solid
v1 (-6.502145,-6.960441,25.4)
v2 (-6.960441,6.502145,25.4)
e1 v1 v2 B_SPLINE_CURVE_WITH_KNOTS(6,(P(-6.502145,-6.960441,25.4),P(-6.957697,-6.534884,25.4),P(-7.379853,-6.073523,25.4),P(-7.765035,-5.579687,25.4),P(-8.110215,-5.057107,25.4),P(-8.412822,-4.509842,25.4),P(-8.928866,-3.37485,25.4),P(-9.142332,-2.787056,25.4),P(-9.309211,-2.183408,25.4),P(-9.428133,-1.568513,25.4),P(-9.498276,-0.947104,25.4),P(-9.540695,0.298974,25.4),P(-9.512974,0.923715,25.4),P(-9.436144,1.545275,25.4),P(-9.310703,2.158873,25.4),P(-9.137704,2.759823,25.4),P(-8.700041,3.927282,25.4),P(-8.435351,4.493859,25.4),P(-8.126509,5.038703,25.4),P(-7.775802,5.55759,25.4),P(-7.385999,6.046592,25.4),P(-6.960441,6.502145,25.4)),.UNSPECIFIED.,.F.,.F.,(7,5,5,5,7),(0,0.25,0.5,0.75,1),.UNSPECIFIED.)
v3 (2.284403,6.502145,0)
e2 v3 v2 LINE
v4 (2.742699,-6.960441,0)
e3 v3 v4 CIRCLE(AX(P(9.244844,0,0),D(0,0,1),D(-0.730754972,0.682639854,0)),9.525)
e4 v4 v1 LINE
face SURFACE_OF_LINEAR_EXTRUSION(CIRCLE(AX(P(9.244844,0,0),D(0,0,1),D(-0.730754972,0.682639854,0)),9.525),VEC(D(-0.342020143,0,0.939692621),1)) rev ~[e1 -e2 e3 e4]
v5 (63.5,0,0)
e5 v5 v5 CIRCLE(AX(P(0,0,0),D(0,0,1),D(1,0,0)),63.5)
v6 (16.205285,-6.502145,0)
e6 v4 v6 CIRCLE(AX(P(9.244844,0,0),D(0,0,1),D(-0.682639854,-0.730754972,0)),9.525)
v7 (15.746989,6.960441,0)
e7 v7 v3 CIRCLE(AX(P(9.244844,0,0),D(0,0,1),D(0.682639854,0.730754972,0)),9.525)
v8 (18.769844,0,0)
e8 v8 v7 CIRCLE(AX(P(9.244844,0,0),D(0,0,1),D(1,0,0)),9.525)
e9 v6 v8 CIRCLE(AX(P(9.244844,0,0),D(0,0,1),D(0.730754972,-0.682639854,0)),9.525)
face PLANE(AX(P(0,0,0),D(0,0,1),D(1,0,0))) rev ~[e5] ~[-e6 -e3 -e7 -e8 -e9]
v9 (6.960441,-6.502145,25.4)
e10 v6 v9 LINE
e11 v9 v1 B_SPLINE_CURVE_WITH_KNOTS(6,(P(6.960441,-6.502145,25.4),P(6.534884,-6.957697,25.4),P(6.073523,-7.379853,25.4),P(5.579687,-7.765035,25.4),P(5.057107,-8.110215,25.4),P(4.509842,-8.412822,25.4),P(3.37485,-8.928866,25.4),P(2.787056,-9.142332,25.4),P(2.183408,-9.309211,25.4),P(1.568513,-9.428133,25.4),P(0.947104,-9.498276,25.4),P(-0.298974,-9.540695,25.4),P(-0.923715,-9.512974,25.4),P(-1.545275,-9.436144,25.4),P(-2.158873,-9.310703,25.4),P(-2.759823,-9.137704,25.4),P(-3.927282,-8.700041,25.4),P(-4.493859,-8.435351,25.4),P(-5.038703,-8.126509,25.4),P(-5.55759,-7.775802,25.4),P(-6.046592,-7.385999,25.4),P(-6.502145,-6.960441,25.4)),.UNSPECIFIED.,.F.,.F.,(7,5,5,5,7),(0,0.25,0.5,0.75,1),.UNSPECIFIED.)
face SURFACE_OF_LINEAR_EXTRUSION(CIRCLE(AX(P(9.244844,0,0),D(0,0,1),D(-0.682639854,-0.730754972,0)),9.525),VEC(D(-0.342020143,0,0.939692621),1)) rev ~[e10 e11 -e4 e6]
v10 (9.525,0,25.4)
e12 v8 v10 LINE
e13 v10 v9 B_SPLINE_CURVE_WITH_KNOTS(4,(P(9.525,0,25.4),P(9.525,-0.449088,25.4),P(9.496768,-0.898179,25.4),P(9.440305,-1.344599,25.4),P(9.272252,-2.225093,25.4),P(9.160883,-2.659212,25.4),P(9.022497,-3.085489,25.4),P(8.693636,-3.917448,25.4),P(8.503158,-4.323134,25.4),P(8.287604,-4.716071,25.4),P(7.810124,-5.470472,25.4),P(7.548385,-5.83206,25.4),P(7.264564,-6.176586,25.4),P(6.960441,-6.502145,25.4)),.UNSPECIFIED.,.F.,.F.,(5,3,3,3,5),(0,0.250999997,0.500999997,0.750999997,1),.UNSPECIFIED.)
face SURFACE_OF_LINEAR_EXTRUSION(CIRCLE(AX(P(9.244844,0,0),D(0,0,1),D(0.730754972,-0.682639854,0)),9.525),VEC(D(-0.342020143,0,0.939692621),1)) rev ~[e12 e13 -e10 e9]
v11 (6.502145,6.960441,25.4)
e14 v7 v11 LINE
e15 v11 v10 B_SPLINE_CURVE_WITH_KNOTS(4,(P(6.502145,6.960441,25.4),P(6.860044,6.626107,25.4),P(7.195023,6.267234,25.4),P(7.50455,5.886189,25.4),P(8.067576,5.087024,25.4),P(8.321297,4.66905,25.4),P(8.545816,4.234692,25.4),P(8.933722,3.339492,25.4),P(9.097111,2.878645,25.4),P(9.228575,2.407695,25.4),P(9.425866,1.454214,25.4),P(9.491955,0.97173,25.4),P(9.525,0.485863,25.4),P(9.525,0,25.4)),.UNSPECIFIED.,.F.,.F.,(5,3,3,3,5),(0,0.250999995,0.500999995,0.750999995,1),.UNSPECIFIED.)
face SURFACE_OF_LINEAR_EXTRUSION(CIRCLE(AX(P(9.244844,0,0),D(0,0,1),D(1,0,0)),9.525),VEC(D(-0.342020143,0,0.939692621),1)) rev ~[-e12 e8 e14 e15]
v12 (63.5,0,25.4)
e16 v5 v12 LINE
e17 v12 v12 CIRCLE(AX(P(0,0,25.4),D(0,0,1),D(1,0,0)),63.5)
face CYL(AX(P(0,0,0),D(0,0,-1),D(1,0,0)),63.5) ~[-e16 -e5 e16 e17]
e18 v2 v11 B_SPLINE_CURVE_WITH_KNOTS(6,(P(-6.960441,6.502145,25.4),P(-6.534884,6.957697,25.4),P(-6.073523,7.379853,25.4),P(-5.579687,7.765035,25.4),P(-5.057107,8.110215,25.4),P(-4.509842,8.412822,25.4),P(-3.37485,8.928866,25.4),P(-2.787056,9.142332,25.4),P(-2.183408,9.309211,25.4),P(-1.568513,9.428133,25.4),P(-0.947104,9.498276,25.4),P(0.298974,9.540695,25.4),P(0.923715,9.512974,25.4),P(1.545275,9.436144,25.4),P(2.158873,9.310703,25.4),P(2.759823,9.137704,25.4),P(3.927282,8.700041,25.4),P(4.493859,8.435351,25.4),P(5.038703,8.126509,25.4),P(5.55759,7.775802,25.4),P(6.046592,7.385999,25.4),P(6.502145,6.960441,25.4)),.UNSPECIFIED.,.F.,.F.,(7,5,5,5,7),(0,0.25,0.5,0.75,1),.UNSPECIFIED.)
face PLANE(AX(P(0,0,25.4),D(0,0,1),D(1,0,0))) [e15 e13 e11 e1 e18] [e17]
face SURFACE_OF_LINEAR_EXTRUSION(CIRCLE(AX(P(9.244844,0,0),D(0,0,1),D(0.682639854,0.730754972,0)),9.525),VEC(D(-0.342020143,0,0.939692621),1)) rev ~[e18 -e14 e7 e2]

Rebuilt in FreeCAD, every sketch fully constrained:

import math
import FreeCAD as App
import Part
import Sketcher
from FreeCAD import Vector
Q = App.Units.Quantity

doc = App.newDocument("Part")
body = doc.addObject("PartDesign::Body", "Body")

# Sketch on XY plane
sketch1 = body.newObject("Sketcher::SketchObject", "Sketch")
sketch1.AttachmentSupport = (doc.getObject("XY_Plane"), [""])
sketch1.MapMode = "FlatFace"
sketch1.addGeometry(Part.Circle(Vector(0, 0, 0), Vector(0, 0, 1), 63.5), False)
sketch1.addConstraint(Sketcher.Constraint("Coincident", 0, 3, -1, 1))
sketch1.addConstraint(Sketcher.Constraint("Diameter", 0, Q("5 in")))
pad1 = body.newObject("PartDesign::Pad", "Pad")
pad1.Profile = sketch1
pad1.Length = Q("1 in")

# Sketch on XY plane
sketch2 = body.newObject("Sketcher::SketchObject", "Sketch001")
sketch2.AttachmentSupport = (doc.getObject("XY_Plane"), [""])
sketch2.MapMode = "FlatFace"
sketch2.AttachmentOffset = App.Placement(Vector(0, 0, 1 * 25.4), App.Rotation())
sketch2.addGeometry(Part.ArcOfCircle(Part.Circle(Vector(0, 0, 0), Vector(0, 0, 1), 9.525), math.radians(-43.050277), math.radians(0)), False)
sketch2.addGeometry(Part.ArcOfCircle(Part.Circle(Vector(0, 0, 0), Vector(0, 0, 1), 9.525), math.radians(0), math.radians(46.949723)), False)
sketch2.addGeometry(Part.ArcOfCircle(Part.Circle(Vector(0, 0, 0), Vector(0, 0, 1), 9.525), math.radians(46.949723), math.radians(136.949723)), False)
sketch2.addGeometry(Part.ArcOfCircle(Part.Circle(Vector(0, 0, 0), Vector(0, 0, 1), 9.525), math.radians(136.949723), math.radians(226.949723)), False)
sketch2.addGeometry(Part.ArcOfCircle(Part.Circle(Vector(0, 0, 0), Vector(0, 0, 1), 9.525), math.radians(-133.050277), math.radians(-43.050277)), False)
sketch2.addConstraint(Sketcher.Constraint("Tangent", 0, 2, 1, 1))
sketch2.addConstraint(Sketcher.Constraint("Tangent", 1, 2, 2, 1))
sketch2.addConstraint(Sketcher.Constraint("Tangent", 2, 2, 3, 1))
sketch2.addConstraint(Sketcher.Constraint("Tangent", 3, 2, 4, 1))
sketch2.addConstraint(Sketcher.Constraint("Tangent", 4, 2, 0, 1))
sketch2.addConstraint(Sketcher.Constraint("Coincident", 0, 3, -1, 1))
sketch2.addConstraint(Sketcher.Constraint("Coincident", 2, 3, -1, 1))
sketch2.addConstraint(Sketcher.Constraint("PointOnObject", 0, 2, -1))
sketch2.addConstraint(Sketcher.Constraint("Radius", 0, Q("0.375 in")))
sketch2.addConstraint(Sketcher.Constraint("DistanceY", -1, 1, 1, 2, 6.960441))
sketch2.addConstraint(Sketcher.Constraint("DistanceX", 2, 2, -1, 1, 6.960441))
sketch2.addConstraint(Sketcher.Constraint("DistanceY", 3, 2, -1, 1, 6.960441))
sketch2.addConstraint(Sketcher.Constraint("DistanceX", -1, 1, 4, 2, 6.960441))

# Sketch on an angled plane
sketch3 = body.newObject("Sketcher::SketchObject", "Sketch002")
sketch3.Placement = App.Placement(Vector(8.308451, 0, 3.024029), App.Rotation(Vector(-0.342020143, 0, 0.939692621), Vector(0, 1, 0), Vector(-0.939692621, 0, -0.342020143), "ZXY"))
sketch3.addGeometry(Part.LineSegment(Vector(-3.218104, -63.5, 0), Vector(24.292285, -63.5, 0)), False)
sketch3.addConstraint(Sketcher.Constraint("Horizontal", 0))
sketch3.addConstraint(Sketcher.Constraint("DistanceY", 0, 1, -1, 1, Q("2.5 in")))
sketch3.addConstraint(Sketcher.Constraint("DistanceX", 0, 1, 0, 2, 27.510389))
sketch3.addConstraint(Sketcher.Constraint("DistanceX", 0, 1, -1, 1, 3.218104))
doc.recompute()

subtractivepipe = body.newObject("PartDesign::SubtractivePipe", "SubtractivePipe")
subtractivepipe.Profile = sketch2
subtractivepipe.Spine = (sketch3, ["Edge1"])

doc.recompute()
